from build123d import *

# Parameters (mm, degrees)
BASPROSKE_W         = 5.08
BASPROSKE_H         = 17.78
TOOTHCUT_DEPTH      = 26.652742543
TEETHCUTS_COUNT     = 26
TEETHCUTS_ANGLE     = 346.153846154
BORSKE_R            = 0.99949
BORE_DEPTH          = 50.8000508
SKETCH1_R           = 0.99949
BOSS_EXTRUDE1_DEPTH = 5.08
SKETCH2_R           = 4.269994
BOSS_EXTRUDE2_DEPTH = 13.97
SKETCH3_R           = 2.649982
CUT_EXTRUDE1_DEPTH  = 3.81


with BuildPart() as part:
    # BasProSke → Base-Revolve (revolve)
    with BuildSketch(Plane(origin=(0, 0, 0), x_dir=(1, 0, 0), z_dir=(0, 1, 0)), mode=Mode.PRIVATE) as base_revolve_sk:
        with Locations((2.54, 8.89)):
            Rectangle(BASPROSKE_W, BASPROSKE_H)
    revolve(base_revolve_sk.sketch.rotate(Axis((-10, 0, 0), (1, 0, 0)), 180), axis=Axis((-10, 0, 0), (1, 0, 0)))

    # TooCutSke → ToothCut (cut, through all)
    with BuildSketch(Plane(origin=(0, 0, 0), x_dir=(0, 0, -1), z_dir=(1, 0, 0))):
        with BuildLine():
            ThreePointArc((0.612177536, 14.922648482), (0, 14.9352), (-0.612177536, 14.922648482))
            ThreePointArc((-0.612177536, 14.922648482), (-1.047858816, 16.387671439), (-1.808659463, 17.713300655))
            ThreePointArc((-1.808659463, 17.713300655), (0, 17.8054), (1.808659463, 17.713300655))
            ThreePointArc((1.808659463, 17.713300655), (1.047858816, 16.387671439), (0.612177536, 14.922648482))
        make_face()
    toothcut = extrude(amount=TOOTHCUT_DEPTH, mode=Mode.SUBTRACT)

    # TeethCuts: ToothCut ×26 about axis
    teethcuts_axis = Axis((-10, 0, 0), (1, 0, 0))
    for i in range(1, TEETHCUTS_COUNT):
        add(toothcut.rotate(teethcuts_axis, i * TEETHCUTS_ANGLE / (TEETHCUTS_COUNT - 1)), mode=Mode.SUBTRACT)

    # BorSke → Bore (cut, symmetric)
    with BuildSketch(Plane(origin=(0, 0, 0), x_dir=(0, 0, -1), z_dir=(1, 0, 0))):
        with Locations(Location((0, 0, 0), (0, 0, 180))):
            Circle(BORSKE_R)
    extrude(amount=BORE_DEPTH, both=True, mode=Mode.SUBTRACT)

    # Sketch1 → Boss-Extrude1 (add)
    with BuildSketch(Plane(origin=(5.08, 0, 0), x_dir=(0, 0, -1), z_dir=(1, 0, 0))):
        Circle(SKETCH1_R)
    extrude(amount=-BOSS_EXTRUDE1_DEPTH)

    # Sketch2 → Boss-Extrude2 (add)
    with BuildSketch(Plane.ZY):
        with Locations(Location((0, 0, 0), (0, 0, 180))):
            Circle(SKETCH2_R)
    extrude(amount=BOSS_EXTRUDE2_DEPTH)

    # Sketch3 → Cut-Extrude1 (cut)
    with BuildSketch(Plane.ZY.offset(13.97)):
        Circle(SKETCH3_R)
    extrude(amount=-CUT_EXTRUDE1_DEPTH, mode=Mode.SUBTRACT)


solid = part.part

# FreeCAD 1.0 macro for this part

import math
import FreeCAD as App
import Part
import Sketcher
Q = App.Units.Quantity


def add_polygon(sketch, points):
    """Adds a closed chain of lines whose ends are joined by coincident constraints."""
    first, n = sketch.GeometryCount, len(points)
    for a, b in zip(points, points[1:] + points[:1]):
        sketch.addGeometry(Part.LineSegment(App.Vector(*a, 0), App.Vector(*b, 0)), False)
    for i in range(n):
        sketch.addConstraint(Sketcher.Constraint("Coincident", first + i, 2, first + (i + 1) % n, 1))

doc = App.newDocument("Part")
body = doc.addObject("PartDesign::Body", "Body")

sketch1 = body.newObject("Sketcher::SketchObject", "Sketch")
sketch1.AttachmentSupport = (doc.getObject("XZ_Plane"), [""])
sketch1.MapMode = "FlatFace"
add_polygon(sketch1, [(0, -18), (0, 0), (5, 0), (5, -18)])
sketch1.addConstraint([
    Sketcher.Constraint("Vertical", 0),
    Sketcher.Constraint("Horizontal", 1),
    Sketcher.Constraint("Vertical", 2),
    Sketcher.Constraint("Horizontal", 3),
    Sketcher.Constraint("Coincident", 0, 2, -1, 1),
    Sketcher.Constraint("DistanceX", 1, 1, 1, 2, Q("0.2 in")),
    Sketcher.Constraint("DistanceY", 0, 1, 0, 2, Q("0.7 in")),
])
revolution = body.newObject("PartDesign::Revolution", "Revolution")
revolution.Profile = sketch1
revolution.ReferenceAxis = (sketch1, ["H_Axis"])
revolution.Angle = 360

sketch2 = body.newObject("Sketcher::SketchObject", "Sketch001")
sketch2.AttachmentSupport = (doc.getObject("YZ_Plane"), [""])
sketch2.MapMode = "FlatFace"
sketch2.addGeometry([
    Part.ArcOfCircle(Part.Circle(App.Vector(0, 0, 0), App.Vector(0, 0, 1), 14.9), math.radians(-2.35), math.radians(2.35)),
    Part.ArcOfCircle(Part.Circle(App.Vector(13.8, -7.1, 0), App.Vector(0, 0, 1), 6.6), math.radians(54), math.radians(80)),
    Part.ArcOfCircle(Part.Circle(App.Vector(0, 0, 0), App.Vector(0, 0, 1), 17.8), math.radians(-5.83), math.radians(5.83)),
    Part.ArcOfCircle(Part.Circle(App.Vector(13.8, 7.1, 0), App.Vector(0, 0, 1), 6.6), math.radians(-80), math.radians(-54)),
], False)
sketch2.addConstraint([
    Sketcher.Constraint("Coincident", 0, 1, 1, 2),
    Sketcher.Constraint("Coincident", 1, 1, 2, 1),
    Sketcher.Constraint("Coincident", 2, 2, 3, 2),
    Sketcher.Constraint("Coincident", 3, 1, 0, 2),
    Sketcher.Constraint("Coincident", 0, 3, -1, 1),
    Sketcher.Constraint("Coincident", 2, 3, -1, 1),
    Sketcher.Constraint("Equal", 1, 3),
    Sketcher.Constraint("Symmetric", 1, 3, 3, 3, -1),
    Sketcher.Constraint("Radius", 1, Q("0.26 in")),
    Sketcher.Constraint("Radius", 0, Q("0.588 in")),
    Sketcher.Constraint("Radius", 2, Q("0.701 in")),
    Sketcher.Constraint("DistanceX", -1, 1, 1, 1, 17.713301),
    Sketcher.Constraint("DistanceX", -1, 1, 1, 3, 13.785331),
])
pocket1 = body.newObject("PartDesign::Pocket", "Pocket")
pocket1.Profile = sketch2
pocket1.Type = "ThroughAll"
pocket1.Reversed = True
doc.recompute()

polarpattern = body.newObject("PartDesign::PolarPattern", "PolarPattern")
polarpattern.Originals = [pocket1]
polarpattern.Axis = (doc.getObject("X_Axis"), [""])
polarpattern.Angle = 360
polarpattern.Occurrences = 26
body.Tip = polarpattern

sketch3 = body.newObject("Sketcher::SketchObject", "Sketch002")
sketch3.AttachmentSupport = (doc.getObject("YZ_Plane"), [""])
sketch3.MapMode = "FlatFace"
sketch3.addGeometry(Part.Circle(App.Vector(0, 0, 0), App.Vector(0, 0, 1), 1), False)
sketch3.addConstraint([
    Sketcher.Constraint("Coincident", 0, 3, -1, 1),
    Sketcher.Constraint("Diameter", 0, Q("0.0787 in")),
])
pocket2 = body.newObject("PartDesign::Pocket", "Pocket001")
pocket2.Profile = sketch3
pocket2.Length = 101.600102
pocket2.Midplane = True

sketch4 = body.newObject("Sketcher::SketchObject", "Sketch003")
sketch4.AttachmentSupport = (doc.getObject("YZ_Plane"), [""])
sketch4.MapMode = "FlatFace"
sketch4.AttachmentOffset = App.Placement(App.Vector(0, 0, 0.2 * 25.4), App.Rotation())
sketch4.addGeometry(Part.Circle(App.Vector(0, 0, 0), App.Vector(0, 0, 1), 1), False)
sketch4.addConstraint([
    Sketcher.Constraint("Coincident", 0, 3, -1, 1),
    Sketcher.Constraint("Diameter", 0, Q("0.0787 in")),
])
pad1 = body.newObject("PartDesign::Pad", "Pad")
pad1.Profile = sketch4
pad1.Length = Q("0.2 in")
pad1.Reversed = True

sketch5 = body.newObject("Sketcher::SketchObject", "Sketch004")
sketch5.AttachmentSupport = (doc.getObject("YZ_Plane"), [""])
sketch5.MapMode = "FlatFace"
sketch5.addGeometry(Part.Circle(App.Vector(0, 0, 0), App.Vector(0, 0, 1), 4.3), False)
sketch5.addConstraint([
    Sketcher.Constraint("Coincident", 0, 3, -1, 1),
    Sketcher.Constraint("Diameter", 0, 8.539988),
])
pad2 = body.newObject("PartDesign::Pad", "Pad001")
pad2.Profile = sketch5
pad2.Length = Q("0.55 in")
pad2.Reversed = True

sketch6 = body.newObject("Sketcher::SketchObject", "Sketch005")
sketch6.AttachmentSupport = (doc.getObject("YZ_Plane"), [""])
sketch6.MapMode = "FlatFace"
sketch6.AttachmentOffset = App.Placement(App.Vector(0, 0, -0.55 * 25.4), App.Rotation())
sketch6.addGeometry(Part.Circle(App.Vector(0, 0, 0), App.Vector(0, 0, 1), 2.6), False)
sketch6.addConstraint([
    Sketcher.Constraint("Coincident", 0, 3, -1, 1),
    Sketcher.Constraint("Diameter", 0, 5.299964),
])
pocket3 = body.newObject("PartDesign::Pocket", "Pocket002")
pocket3.Profile = sketch6
pocket3.Length = Q("0.15 in")
pocket3.Reversed = True

doc.recompute()
